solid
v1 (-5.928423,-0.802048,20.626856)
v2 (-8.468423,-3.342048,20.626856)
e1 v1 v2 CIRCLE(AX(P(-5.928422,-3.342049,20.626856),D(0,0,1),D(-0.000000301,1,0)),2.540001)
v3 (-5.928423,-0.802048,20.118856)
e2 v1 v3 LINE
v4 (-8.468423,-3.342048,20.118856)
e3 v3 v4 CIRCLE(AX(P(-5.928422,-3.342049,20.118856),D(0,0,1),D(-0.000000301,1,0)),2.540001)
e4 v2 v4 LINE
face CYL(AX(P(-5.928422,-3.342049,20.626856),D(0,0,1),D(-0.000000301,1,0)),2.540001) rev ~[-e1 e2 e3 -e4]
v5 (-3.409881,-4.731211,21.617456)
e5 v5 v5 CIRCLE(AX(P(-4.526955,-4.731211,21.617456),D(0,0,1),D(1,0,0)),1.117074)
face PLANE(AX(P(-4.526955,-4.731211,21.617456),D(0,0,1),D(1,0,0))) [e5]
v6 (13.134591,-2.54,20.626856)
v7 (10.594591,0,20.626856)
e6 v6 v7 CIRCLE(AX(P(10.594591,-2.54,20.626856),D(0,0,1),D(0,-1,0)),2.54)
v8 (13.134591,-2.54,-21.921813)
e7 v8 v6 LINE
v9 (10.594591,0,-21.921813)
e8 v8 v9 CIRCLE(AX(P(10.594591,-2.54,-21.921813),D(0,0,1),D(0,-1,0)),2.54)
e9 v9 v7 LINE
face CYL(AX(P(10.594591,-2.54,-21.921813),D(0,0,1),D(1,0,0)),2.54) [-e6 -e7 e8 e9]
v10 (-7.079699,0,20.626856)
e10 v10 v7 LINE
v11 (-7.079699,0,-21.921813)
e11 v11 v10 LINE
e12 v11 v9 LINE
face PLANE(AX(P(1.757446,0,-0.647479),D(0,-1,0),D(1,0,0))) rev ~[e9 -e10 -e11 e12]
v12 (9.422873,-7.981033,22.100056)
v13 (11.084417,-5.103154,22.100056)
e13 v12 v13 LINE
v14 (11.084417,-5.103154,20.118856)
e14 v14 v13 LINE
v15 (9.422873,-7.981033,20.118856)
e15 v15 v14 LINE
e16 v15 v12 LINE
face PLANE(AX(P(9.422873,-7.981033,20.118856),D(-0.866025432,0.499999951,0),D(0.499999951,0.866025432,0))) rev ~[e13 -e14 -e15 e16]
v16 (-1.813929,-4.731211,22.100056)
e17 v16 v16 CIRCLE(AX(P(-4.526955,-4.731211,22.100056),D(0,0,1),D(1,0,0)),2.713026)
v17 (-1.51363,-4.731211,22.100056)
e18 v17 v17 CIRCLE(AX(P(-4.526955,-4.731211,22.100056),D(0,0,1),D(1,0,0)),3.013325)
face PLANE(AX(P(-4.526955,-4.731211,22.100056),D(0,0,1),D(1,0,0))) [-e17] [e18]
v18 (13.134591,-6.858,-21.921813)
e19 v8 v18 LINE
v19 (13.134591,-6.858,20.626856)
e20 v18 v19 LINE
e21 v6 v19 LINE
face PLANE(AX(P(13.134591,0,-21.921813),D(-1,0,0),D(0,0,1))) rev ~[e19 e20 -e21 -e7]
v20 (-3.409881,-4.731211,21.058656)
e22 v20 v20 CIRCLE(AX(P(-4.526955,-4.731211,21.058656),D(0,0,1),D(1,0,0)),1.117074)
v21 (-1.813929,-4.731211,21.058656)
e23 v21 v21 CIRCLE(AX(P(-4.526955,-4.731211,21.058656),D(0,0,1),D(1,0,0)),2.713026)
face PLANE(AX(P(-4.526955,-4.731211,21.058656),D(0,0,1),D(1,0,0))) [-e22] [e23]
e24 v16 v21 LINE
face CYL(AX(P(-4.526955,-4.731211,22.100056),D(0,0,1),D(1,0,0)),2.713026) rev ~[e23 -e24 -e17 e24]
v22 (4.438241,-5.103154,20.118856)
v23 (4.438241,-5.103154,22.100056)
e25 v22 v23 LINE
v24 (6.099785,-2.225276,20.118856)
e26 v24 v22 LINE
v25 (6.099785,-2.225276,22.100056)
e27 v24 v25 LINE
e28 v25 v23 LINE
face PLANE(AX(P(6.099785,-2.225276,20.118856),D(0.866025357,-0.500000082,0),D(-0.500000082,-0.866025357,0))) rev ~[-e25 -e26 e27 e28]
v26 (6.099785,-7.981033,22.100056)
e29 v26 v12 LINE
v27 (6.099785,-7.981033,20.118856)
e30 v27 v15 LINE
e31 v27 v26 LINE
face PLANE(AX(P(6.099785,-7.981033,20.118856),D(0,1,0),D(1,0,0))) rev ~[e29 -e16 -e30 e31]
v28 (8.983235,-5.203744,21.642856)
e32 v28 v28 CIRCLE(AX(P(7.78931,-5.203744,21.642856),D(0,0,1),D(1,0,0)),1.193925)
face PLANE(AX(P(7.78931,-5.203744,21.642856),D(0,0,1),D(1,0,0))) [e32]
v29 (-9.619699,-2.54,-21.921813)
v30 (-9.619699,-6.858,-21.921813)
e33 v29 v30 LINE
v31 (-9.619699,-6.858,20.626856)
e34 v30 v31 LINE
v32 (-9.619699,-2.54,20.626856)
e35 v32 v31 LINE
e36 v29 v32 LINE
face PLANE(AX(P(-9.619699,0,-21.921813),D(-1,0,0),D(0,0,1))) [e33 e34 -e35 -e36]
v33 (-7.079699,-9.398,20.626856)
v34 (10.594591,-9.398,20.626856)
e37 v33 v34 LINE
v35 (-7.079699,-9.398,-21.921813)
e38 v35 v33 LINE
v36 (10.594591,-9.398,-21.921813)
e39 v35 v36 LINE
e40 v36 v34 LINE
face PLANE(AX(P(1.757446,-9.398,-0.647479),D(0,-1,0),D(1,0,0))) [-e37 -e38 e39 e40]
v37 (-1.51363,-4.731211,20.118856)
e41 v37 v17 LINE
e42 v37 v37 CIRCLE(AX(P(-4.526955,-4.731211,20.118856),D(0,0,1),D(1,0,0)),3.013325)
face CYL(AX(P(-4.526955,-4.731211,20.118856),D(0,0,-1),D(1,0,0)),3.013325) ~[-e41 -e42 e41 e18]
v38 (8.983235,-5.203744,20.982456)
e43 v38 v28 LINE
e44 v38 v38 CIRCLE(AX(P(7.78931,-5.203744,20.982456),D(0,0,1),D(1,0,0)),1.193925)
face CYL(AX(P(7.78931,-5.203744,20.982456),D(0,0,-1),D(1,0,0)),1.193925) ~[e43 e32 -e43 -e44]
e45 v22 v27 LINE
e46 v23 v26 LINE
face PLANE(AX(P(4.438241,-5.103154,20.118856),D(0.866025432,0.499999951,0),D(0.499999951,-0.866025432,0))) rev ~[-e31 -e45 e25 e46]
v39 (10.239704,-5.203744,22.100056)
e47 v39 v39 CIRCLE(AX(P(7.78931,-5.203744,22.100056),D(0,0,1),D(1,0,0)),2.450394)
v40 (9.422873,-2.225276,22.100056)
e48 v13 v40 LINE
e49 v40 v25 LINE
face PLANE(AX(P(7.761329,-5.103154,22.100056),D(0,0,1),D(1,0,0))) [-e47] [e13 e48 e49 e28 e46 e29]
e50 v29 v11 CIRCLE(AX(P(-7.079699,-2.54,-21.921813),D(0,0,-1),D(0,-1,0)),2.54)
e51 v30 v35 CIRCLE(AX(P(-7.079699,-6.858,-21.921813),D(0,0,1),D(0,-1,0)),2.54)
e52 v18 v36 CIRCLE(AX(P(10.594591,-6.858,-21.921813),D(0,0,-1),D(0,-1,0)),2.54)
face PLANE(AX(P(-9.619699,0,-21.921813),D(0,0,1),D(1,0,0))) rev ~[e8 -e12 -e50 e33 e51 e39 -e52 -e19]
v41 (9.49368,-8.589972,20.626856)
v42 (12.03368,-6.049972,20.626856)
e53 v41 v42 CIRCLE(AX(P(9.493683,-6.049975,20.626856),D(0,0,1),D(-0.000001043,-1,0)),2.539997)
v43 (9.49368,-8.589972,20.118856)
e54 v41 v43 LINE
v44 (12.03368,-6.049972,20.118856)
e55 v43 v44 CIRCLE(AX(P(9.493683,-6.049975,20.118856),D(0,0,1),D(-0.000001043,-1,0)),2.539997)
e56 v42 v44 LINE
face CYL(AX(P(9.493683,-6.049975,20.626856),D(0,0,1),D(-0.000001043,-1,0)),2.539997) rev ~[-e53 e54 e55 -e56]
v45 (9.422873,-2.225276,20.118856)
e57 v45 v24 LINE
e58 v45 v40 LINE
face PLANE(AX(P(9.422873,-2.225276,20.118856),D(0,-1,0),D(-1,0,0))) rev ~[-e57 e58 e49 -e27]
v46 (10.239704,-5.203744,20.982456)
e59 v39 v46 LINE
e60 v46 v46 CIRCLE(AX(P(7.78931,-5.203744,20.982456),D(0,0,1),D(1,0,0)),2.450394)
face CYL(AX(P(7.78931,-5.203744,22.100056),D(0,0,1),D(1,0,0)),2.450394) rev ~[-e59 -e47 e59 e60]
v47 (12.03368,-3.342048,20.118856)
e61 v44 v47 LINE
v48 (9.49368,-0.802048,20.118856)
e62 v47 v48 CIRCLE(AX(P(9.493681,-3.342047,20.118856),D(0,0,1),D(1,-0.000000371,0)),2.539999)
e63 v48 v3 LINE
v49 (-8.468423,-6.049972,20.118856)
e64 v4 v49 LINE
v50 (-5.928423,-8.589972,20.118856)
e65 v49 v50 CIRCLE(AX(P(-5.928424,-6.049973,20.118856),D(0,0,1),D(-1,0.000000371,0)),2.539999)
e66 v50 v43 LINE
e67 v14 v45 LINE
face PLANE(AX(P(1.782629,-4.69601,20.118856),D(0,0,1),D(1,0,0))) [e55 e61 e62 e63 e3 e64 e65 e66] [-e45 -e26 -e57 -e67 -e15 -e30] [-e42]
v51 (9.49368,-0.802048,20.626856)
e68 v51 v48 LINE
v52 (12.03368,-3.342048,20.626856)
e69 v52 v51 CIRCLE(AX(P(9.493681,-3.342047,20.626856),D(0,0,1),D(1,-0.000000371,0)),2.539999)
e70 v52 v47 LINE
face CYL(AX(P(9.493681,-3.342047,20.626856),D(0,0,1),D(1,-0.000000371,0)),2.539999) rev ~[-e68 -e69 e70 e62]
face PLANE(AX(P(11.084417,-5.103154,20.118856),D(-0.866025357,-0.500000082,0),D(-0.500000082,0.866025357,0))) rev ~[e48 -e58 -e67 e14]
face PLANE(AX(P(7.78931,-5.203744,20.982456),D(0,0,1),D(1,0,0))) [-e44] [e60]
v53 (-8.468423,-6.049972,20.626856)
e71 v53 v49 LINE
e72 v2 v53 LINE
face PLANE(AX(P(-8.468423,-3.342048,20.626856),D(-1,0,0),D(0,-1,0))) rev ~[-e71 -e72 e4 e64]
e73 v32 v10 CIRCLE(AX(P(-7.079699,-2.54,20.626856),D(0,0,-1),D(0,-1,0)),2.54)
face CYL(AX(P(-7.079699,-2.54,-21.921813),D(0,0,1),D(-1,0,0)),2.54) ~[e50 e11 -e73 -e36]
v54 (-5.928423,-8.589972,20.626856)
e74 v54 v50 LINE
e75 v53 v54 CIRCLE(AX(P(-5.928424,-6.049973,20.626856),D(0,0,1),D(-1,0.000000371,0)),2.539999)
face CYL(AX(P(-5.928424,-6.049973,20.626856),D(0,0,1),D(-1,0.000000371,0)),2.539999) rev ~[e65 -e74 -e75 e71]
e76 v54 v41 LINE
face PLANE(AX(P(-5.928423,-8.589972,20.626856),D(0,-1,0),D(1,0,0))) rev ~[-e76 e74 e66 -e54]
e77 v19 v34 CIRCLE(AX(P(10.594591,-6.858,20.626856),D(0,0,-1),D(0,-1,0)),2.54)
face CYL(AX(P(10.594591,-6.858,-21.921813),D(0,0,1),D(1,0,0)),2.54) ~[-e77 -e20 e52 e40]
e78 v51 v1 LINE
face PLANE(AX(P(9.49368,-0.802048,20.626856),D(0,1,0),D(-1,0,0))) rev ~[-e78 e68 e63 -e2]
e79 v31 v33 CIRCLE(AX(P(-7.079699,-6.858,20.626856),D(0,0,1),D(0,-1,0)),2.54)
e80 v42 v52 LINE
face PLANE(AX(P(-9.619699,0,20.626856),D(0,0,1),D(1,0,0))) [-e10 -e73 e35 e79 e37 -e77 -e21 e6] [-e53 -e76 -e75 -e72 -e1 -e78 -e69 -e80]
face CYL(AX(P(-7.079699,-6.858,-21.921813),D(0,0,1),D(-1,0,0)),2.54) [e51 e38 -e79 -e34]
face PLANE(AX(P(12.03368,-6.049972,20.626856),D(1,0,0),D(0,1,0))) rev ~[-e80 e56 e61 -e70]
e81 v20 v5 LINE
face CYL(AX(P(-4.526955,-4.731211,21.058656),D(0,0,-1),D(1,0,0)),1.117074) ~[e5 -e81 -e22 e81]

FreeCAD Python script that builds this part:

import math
import FreeCAD as App
import Part
import Sketcher
Q = App.Units.Quantity


def edges_at(feature, points):
    """Names of the edges that pass closest to the given points."""
    edges = feature.Shape.Edges
    near = lambda p: min(range(len(edges)), key=lambda i: edges[i].distToShape(Part.Vertex(*p))[0])
    return sorted({f"Edge{near(p) + 1}" for p in points})

doc = App.newDocument("Part")
body = doc.addObject("PartDesign::Body", "Body")

sketch1 = body.newObject("Sketcher::SketchObject", "Sketch")
sketch1.AttachmentSupport = (doc.getObject("XZ_Plane"), [""])
sketch1.MapMode = "FlatFace"
sketch1.addGeometry([
    Part.LineSegment(App.Vector(-9.619699, 20.626856, 0), App.Vector(-9.619699, -21.921813, 0)),
    Part.LineSegment(App.Vector(-9.619699, -21.921813, 0), App.Vector(13.134591, -21.921813, 0)),
    Part.LineSegment(App.Vector(13.134591, -21.921813, 0), App.Vector(13.134591, 20.626856, 0)),
    Part.LineSegment(App.Vector(13.134591, 20.626856, 0), App.Vector(-9.619699, 20.626856, 0)),
], False)
sketch1.addConstraint([
    Sketcher.Constraint("Coincident", 0, 2, 1, 1),
    Sketcher.Constraint("Coincident", 1, 2, 2, 1),
    Sketcher.Constraint("Coincident", 2, 2, 3, 1),
    Sketcher.Constraint("Coincident", 3, 2, 0, 1),
    Sketcher.Constraint("Vertical", 0),
    Sketcher.Constraint("Horizontal", 1),
    Sketcher.Constraint("Vertical", 2),
    Sketcher.Constraint("Horizontal", 3),
    Sketcher.Constraint("DistanceX", 1, 1, 1, 2, Q("22.75429 mm")),
    Sketcher.Constraint("DistanceY", 0, 2, 0, 1, Q("42.548669 mm")),
    Sketcher.Constraint("DistanceX", 0, 2, -1, 1, Q("9.619699 mm")),
    Sketcher.Constraint("DistanceY", 0, 2, -1, 1, Q("21.921813 mm")),
])
pad1 = body.newObject("PartDesign::Pad", "Pad")
pad1.Profile = sketch1
pad1.Length = Q("0.37 in")
doc.recompute()

fillet = body.newObject("PartDesign::Fillet", "Fillet")
fillet.Base = (pad1, edges_at(pad1, [
    (13.135, -9.398, -0.647),
    (-9.62, -9.398, -0.647),
    (13.135, 0, -0.647),
    (-9.62, 0, -0.647),
]))
fillet.Radius = Q("0.1 in")

sketch2 = body.newObject("Sketcher::SketchObject", "Sketch001")
sketch2.AttachmentSupport = (doc.getObject("XY_Plane"), [""])
sketch2.MapMode = "FlatFace"
sketch2.AttachmentOffset = App.Placement(App.Vector(0, 0, 20.626856), App.Rotation())
sketch2.addGeometry([
    Part.LineSegment(App.Vector(9.49368, -0.802048, 0), App.Vector(-5.928423, -0.802048, 0)),
    Part.ArcOfCircle(Part.Circle(App.Vector(-5.928422, -3.342049, 0), App.Vector(0, 0, 1), 2.540001), math.radians(90.000017), math.radians(179.999983)),
    Part.LineSegment(App.Vector(-8.468423, -3.342048, 0), App.Vector(-8.468423, -6.049972, 0)),
    Part.ArcOfCircle(Part.Circle(App.Vector(-5.928424, -6.049973, 0), App.Vector(0, 0, 1), 2.539999), math.radians(179.999979), math.radians(270.000021)),
    Part.LineSegment(App.Vector(-5.928423, -8.589972, 0), App.Vector(9.49368, -8.589972, 0)),
    Part.ArcOfCircle(Part.Circle(App.Vector(9.493683, -6.049975, 0), App.Vector(0, 0, 1), 2.539997), math.radians(-90.00006), math.radians(0.00006)),
    Part.LineSegment(App.Vector(12.03368, -6.049972, 0), App.Vector(12.03368, -3.342048, 0)),
    Part.ArcOfCircle(Part.Circle(App.Vector(9.493681, -3.342047, 0), App.Vector(0, 0, 1), 2.539999), math.radians(-0.000021), math.radians(90.000021)),
], False)
sketch2.addConstraint([
    Sketcher.Constraint("Tangent", 0, 2, 1, 1),
    Sketcher.Constraint("Tangent", 1, 2, 2, 1),
    Sketcher.Constraint("Tangent", 2, 2, 3, 1),
    Sketcher.Constraint("Tangent", 3, 2, 4, 1),
    Sketcher.Constraint("Tangent", 4, 2, 5, 1),
    Sketcher.Constraint("Tangent", 5, 2, 6, 1),
    Sketcher.Constraint("Tangent", 6, 2, 7, 1),
    Sketcher.Constraint("Tangent", 7, 2, 0, 1),
    Sketcher.Constraint("Horizontal", 0),
    Sketcher.Constraint("Vertical", 2),
    Sketcher.Constraint("Horizontal", 4),
    Sketcher.Constraint("Vertical", 6),
    Sketcher.Constraint("Equal", 1, 3),
    Sketcher.Constraint("Equal", 3, 5),
    Sketcher.Constraint("Equal", 5, 7),
    Sketcher.Constraint("Radius", 1, Q("0.1 in")),
    Sketcher.Constraint("DistanceX", 0, 2, 0, 1, Q("15.422103 mm")),
    Sketcher.Constraint("DistanceY", 2, 2, 2, 1, Q("2.707924 mm")),
    Sketcher.Constraint("DistanceY", 1, 3, -1, 1, Q("3.342049 mm")),
    Sketcher.Constraint("DistanceX", -1, 1, 7, 3, Q("9.493681 mm")),
])
pocket1 = body.newObject("PartDesign::Pocket", "Pocket")
pocket1.Profile = sketch2
pocket1.Length = Q("0.02 in")

sketch3 = body.newObject("Sketcher::SketchObject", "Sketch002")
sketch3.AttachmentSupport = (doc.getObject("XY_Plane"), [""])
sketch3.MapMode = "FlatFace"
sketch3.AttachmentOffset = App.Placement(App.Vector(0, 0, 20.118856), App.Rotation())
sketch3.addGeometry([
    Part.LineSegment(App.Vector(9.422873, -2.225276, 0), App.Vector(6.099785, -2.225276, 0)),
    Part.LineSegment(App.Vector(6.099785, -2.225276, 0), App.Vector(4.438241, -5.103154, 0)),
    Part.LineSegment(App.Vector(4.438241, -5.103154, 0), App.Vector(6.099785, -7.981033, 0)),
    Part.LineSegment(App.Vector(6.099785, -7.981033, 0), App.Vector(9.422873, -7.981033, 0)),
    Part.LineSegment(App.Vector(9.422873, -7.981033, 0), App.Vector(11.084417, -5.103154, 0)),
    Part.LineSegment(App.Vector(11.084417, -5.103154, 0), App.Vector(9.422873, -2.225276, 0)),
], False)
sketch3.addConstraint([
    Sketcher.Constraint("Coincident", 0, 2, 1, 1),
    Sketcher.Constraint("Coincident", 1, 2, 2, 1),
    Sketcher.Constraint("Coincident", 2, 2, 3, 1),
    Sketcher.Constraint("Coincident", 3, 2, 4, 1),
    Sketcher.Constraint("Coincident", 4, 2, 5, 1),
    Sketcher.Constraint("Coincident", 5, 2, 0, 1),
    Sketcher.Constraint("Horizontal", 0),
    Sketcher.Constraint("Horizontal", 3),
    Sketcher.Constraint("Parallel", 1, 4),
    Sketcher.Constraint("Parallel", 2, 5),
    Sketcher.Constraint("Horizontal", 1, 2, 4, 2),
    Sketcher.Constraint("Vertical", 0, 2, 2, 2),
    Sketcher.Constraint("Vertical", 3, 2, 5, 2),
    Sketcher.Constraint("Angle", 1, Q("-120.000005 deg")),
    Sketcher.Constraint("Distance", 2, Q("3.323088 mm")),
    Sketcher.Constraint("DistanceX", 0, 2, 0, 1, Q("3.323088 mm")),
    Sketcher.Constraint("DistanceX", -1, 1, 1, 2, Q("4.438241 mm")),
    Sketcher.Constraint("DistanceY", 0, 2, -1, 1, Q("2.225276 mm")),
])
pad2 = body.newObject("PartDesign::Pad", "Pad001")
pad2.Profile = sketch3
pad2.Length = Q("0.078 in")

sketch4 = body.newObject("Sketcher::SketchObject", "Sketch003")
sketch4.AttachmentSupport = (doc.getObject("XY_Plane"), [""])
sketch4.MapMode = "FlatFace"
sketch4.AttachmentOffset = App.Placement(App.Vector(0, 0, 20.118856), App.Rotation())
sketch4.addGeometry(Part.Circle(App.Vector(-4.526955, -4.731211, 0), App.Vector(0, 0, 1), 3.013325), False)
sketch4.addConstraint([
    Sketcher.Constraint("Diameter", 0, Q("6.02665 mm")),
    Sketcher.Constraint("DistanceY", 0, 3, -1, 1, Q("4.731211 mm")),
    Sketcher.Constraint("DistanceX", 0, 3, -1, 1, Q("4.526955 mm")),
])
pad3 = body.newObject("PartDesign::Pad", "Pad002")
pad3.Profile = sketch4
pad3.Length = Q("0.078 in")

sketch5 = body.newObject("Sketcher::SketchObject", "Sketch004")
sketch5.AttachmentSupport = (doc.getObject("XY_Plane"), [""])
sketch5.MapMode = "FlatFace"
sketch5.AttachmentOffset = App.Placement(App.Vector(0, 0, 22.100056), App.Rotation())
sketch5.addGeometry(Part.Circle(App.Vector(-4.526955, -4.731211, 0), App.Vector(0, 0, 1), 2.713026), False)
sketch5.addConstraint([
    Sketcher.Constraint("Diameter", 0, Q("5.426052 mm")),
    Sketcher.Constraint("DistanceY", 0, 3, -1, 1, Q("4.731211 mm")),
    Sketcher.Constraint("DistanceX", 0, 3, -1, 1, Q("4.526955 mm")),
])
pocket2 = body.newObject("PartDesign::Pocket", "Pocket001")
pocket2.Profile = sketch5
pocket2.Length = Q("0.041 in")

sketch6 = body.newObject("Sketcher::SketchObject", "Sketch005")
sketch6.AttachmentSupport = (doc.getObject("XY_Plane"), [""])
sketch6.MapMode = "FlatFace"
sketch6.AttachmentOffset = App.Placement(App.Vector(0, 0, 21.058656), App.Rotation())
sketch6.addGeometry(Part.Circle(App.Vector(-4.526955, -4.731211, 0), App.Vector(0, 0, 1), 1.117074), False)
sketch6.addConstraint([
    Sketcher.Constraint("Diameter", 0, Q("2.234148 mm")),
    Sketcher.Constraint("DistanceY", 0, 3, -1, 1, Q("4.731211 mm")),
    Sketcher.Constraint("DistanceX", 0, 3, -1, 1, Q("4.526955 mm")),
])
pad4 = body.newObject("PartDesign::Pad", "Pad003")
pad4.Profile = sketch6
pad4.Length = Q("0.022 in")

sketch7 = body.newObject("Sketcher::SketchObject", "Sketch006")
sketch7.AttachmentSupport = (doc.getObject("XY_Plane"), [""])
sketch7.MapMode = "FlatFace"
sketch7.AttachmentOffset = App.Placement(App.Vector(0, 0, 22.100056), App.Rotation())
sketch7.addGeometry(Part.Circle(App.Vector(7.78931, -5.203744, 0), App.Vector(0, 0, 1), 2.450394), False)
sketch7.addConstraint([
    Sketcher.Constraint("Diameter", 0, Q("4.900788 mm")),
    Sketcher.Constraint("DistanceX", -1, 1, 0, 3, Q("7.78931 mm")),
    Sketcher.Constraint("DistanceY", 0, 3, -1, 1, Q("5.203744 mm")),
])
pocket3 = body.newObject("PartDesign::Pocket", "Pocket002")
pocket3.Profile = sketch7
pocket3.Length = Q("0.044 in")

sketch8 = body.newObject("Sketcher::SketchObject", "Sketch007")
sketch8.AttachmentSupport = (doc.getObject("XY_Plane"), [""])
sketch8.MapMode = "FlatFace"
sketch8.AttachmentOffset = App.Placement(App.Vector(0, 0, 20.982456), App.Rotation())
sketch8.addGeometry(Part.Circle(App.Vector(7.78931, -5.203744, 0), App.Vector(0, 0, 1), 1.193925), False)
sketch8.addConstraint([
    Sketcher.Constraint("Diameter", 0, Q("2.38785 mm")),
    Sketcher.Constraint("DistanceX", -1, 1, 0, 3, Q("7.78931 mm")),
    Sketcher.Constraint("DistanceY", 0, 3, -1, 1, Q("5.203744 mm")),
])
pad5 = body.newObject("PartDesign::Pad", "Pad004")
pad5.Profile = sketch8
pad5.Length = Q("0.026 in")

doc.recompute()
